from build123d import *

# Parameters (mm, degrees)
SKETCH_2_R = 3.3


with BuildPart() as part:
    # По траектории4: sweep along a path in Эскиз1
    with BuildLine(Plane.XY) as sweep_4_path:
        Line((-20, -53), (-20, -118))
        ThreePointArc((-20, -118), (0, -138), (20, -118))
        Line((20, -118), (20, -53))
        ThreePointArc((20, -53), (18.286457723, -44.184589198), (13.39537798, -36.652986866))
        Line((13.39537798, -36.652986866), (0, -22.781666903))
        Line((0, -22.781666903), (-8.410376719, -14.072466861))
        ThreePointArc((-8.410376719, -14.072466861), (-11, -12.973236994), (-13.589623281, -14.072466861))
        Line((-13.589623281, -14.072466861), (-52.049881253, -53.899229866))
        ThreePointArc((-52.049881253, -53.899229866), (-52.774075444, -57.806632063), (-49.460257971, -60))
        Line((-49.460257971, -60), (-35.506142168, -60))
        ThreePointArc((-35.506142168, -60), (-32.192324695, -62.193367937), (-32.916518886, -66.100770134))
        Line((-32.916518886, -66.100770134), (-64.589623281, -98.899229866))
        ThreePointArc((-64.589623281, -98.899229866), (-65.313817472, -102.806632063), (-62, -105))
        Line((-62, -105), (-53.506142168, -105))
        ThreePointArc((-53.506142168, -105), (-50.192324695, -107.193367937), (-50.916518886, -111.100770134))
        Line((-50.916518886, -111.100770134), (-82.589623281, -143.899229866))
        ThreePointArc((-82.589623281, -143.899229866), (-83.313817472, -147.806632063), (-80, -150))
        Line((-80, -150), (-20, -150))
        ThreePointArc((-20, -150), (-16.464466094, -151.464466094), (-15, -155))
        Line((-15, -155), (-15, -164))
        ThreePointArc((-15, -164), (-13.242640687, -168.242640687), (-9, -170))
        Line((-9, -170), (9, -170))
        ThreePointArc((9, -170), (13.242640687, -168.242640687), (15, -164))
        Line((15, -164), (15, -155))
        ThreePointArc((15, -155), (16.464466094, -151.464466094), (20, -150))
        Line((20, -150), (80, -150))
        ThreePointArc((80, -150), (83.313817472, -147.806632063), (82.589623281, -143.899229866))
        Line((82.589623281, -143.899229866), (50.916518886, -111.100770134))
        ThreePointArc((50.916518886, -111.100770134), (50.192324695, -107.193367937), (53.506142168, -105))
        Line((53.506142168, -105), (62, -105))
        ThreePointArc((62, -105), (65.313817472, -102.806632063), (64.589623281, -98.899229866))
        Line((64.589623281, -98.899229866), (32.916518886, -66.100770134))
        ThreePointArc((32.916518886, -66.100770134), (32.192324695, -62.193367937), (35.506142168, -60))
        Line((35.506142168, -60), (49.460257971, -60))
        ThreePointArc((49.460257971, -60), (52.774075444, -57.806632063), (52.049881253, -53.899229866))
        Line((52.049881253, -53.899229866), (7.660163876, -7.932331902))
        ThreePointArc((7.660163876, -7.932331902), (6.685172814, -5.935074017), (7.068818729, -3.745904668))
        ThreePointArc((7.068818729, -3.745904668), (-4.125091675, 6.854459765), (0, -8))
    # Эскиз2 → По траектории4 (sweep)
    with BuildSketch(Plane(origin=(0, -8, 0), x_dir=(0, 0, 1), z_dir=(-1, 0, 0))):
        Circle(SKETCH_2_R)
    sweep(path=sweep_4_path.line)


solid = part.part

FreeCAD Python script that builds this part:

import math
import FreeCAD as App
import Part
import Sketcher
from FreeCAD import Vector
Q = App.Units.Quantity

doc = App.newDocument("Part")
params = doc.addObject("Spreadsheet::Sheet", "Params")
for row, (alias, value) in enumerate([
    ("sketch1_diameter", "6.6 mm"),
    ("sketch2_radius", "20 mm"),
    ("sketch2_radius2", "5 mm"),
    ("sketch2_radius3", "6 mm"),
    ("sketch2_radius4", "8 mm"),
    ("sketch2_radius5", "3.6 mm"),
], start=1):
    params.set(f"A{row}", alias)
    params.set(f"B{row}", "=" + value)
    params.setAlias(f"B{row}", alias)

body = doc.addObject("PartDesign::Body", "Body")

# Sketch on YZ plane
sketch1 = body.newObject("Sketcher::SketchObject", "Sketch")
sketch1.AttachmentSupport = (doc.getObject("YZ_Plane"), [""])
sketch1.MapMode = "FlatFace"
sketch1.addGeometry(Part.Circle(Vector(-8, 0, 0), Vector(0, 0, 1), 3.3), False)
sketch1.addConstraint([
    Sketcher.Constraint("PointOnObject", 0, 3, -1),
    Sketcher.Constraint("Diameter", 0, 6.6),
    Sketcher.Constraint("DistanceX", 0, 3, -1, 1, 8.0),
])
sketch1.setExpression("Constraints[1]", "Params.sketch1_diameter")

# Sketch on XY plane
sketch2 = body.newObject("Sketcher::SketchObject", "Sketch001")
sketch2.AttachmentSupport = (doc.getObject("XY_Plane"), [""])
sketch2.MapMode = "FlatFace"
sketch2.addGeometry([
    Part.LineSegment(Vector(-20, -53, 0), Vector(-20, -118, 0)),  # 0
    Part.ArcOfCircle(Part.Circle(Vector(0, -118, 0), Vector(0, 0, 1), 20), math.radians(180), math.radians(360)),  # 1
    Part.LineSegment(Vector(20, -118, 0), Vector(20, -53, 0)),  # 2
    Part.ArcOfCircle(Part.Circle(Vector(-3.53245, -53, 0), Vector(0, 0, 1), 23.53245), math.radians(0), math.radians(44)),  # 3
    Part.LineSegment(Vector(13.395378, -36.652987, 0), Vector(0, -22.781667, 0)),  # 4
    Part.LineSegment(Vector(0, -22.781667, 0), Vector(-8.410377, -14.072467, 0)),  # 5
    Part.ArcOfCircle(Part.Circle(Vector(-11, -16.573237, 0), Vector(0, 0, 1), 3.6), math.radians(44), math.radians(136)),  # 6
    Part.LineSegment(Vector(-13.589623, -14.072467, 0), Vector(-52.049881, -53.89923, 0)),  # 7
    Part.ArcOfCircle(Part.Circle(Vector(-49.460258, -56.4, 0), Vector(0, 0, 1), 3.6), math.radians(136), math.radians(270)),  # 8
    Part.LineSegment(Vector(-49.460258, -60, 0), Vector(-35.506142, -60, 0)),  # 9
    Part.ArcOfCircle(Part.Circle(Vector(-35.506142, -63.6, 0), Vector(0, 0, 1), 3.6), math.radians(-44), math.radians(90)),  # 10
    Part.LineSegment(Vector(-32.916519, -66.10077, 0), Vector(-64.589623, -98.89923, 0)),  # 11
    Part.ArcOfCircle(Part.Circle(Vector(-62, -101.4, 0), Vector(0, 0, 1), 3.6), math.radians(136), math.radians(270)),  # 12
    Part.LineSegment(Vector(-62, -105, 0), Vector(-53.506142, -105, 0)),  # 13
    Part.ArcOfCircle(Part.Circle(Vector(-53.506142, -108.6, 0), Vector(0, 0, 1), 3.6), math.radians(-44), math.radians(90)),  # 14
    Part.LineSegment(Vector(-50.916519, -111.10077, 0), Vector(-82.589623, -143.89923, 0)),  # 15
    Part.ArcOfCircle(Part.Circle(Vector(-80, -146.4, 0), Vector(0, 0, 1), 3.6), math.radians(136), math.radians(270)),  # 16
    Part.LineSegment(Vector(-80, -150, 0), Vector(-20, -150, 0)),  # 17
    Part.ArcOfCircle(Part.Circle(Vector(-20, -155, 0), Vector(0, 0, 1), 5), math.radians(0), math.radians(90)),  # 18
    Part.LineSegment(Vector(-15, -155, 0), Vector(-15, -164, 0)),  # 19
    Part.ArcOfCircle(Part.Circle(Vector(-9, -164, 0), Vector(0, 0, 1), 6), math.radians(180), math.radians(270)),  # 20
    Part.LineSegment(Vector(-9, -170, 0), Vector(9, -170, 0)),  # 21
    Part.ArcOfCircle(Part.Circle(Vector(9, -164, 0), Vector(0, 0, 1), 6), math.radians(-90), math.radians(0)),  # 22
    Part.LineSegment(Vector(15, -164, 0), Vector(15, -155, 0)),  # 23
    Part.ArcOfCircle(Part.Circle(Vector(20, -155, 0), Vector(0, 0, 1), 5), math.radians(90), math.radians(180)),  # 24
    Part.LineSegment(Vector(20, -150, 0), Vector(80, -150, 0)),  # 25
    Part.ArcOfCircle(Part.Circle(Vector(80, -146.4, 0), Vector(0, 0, 1), 3.6), math.radians(-90), math.radians(44)),  # 26
    Part.LineSegment(Vector(82.589623, -143.89923, 0), Vector(50.916519, -111.10077, 0)),  # 27
    Part.ArcOfCircle(Part.Circle(Vector(53.506142, -108.6, 0), Vector(0, 0, 1), 3.6), math.radians(90), math.radians(224)),  # 28
    Part.LineSegment(Vector(53.506142, -105, 0), Vector(62, -105, 0)),  # 29
    Part.ArcOfCircle(Part.Circle(Vector(62, -101.4, 0), Vector(0, 0, 1), 3.6), math.radians(-90), math.radians(44)),  # 30
    Part.LineSegment(Vector(64.589623, -98.89923, 0), Vector(32.916519, -66.10077, 0)),  # 31
    Part.ArcOfCircle(Part.Circle(Vector(35.506142, -63.6, 0), Vector(0, 0, 1), 3.6), math.radians(90), math.radians(224)),  # 32
    Part.LineSegment(Vector(35.506142, -60, 0), Vector(49.460258, -60, 0)),  # 33
    Part.ArcOfCircle(Part.Circle(Vector(49.460258, -56.4, 0), Vector(0, 0, 1), 3.6), math.radians(-90), math.radians(44)),  # 34
    Part.LineSegment(Vector(52.049881, -53.89923, 0), Vector(7.660164, -7.932332, 0)),  # 35
    Part.ArcOfCircle(Part.Circle(Vector(10.249787, -5.431562, 0), Vector(0, 0, 1), 3.6), math.radians(152.080013), math.radians(224)),  # 36
    Part.ArcOfCircle(Part.Circle(Vector(0, 0, 0), Vector(0, 0, 1), 8), math.radians(-27.919987), math.radians(270)),  # 37
], False)
sketch2.addConstraint([
    Sketcher.Constraint("Tangent", 0, 2, 1, 1),
    Sketcher.Constraint("Tangent", 1, 2, 2, 1),
    Sketcher.Constraint("Tangent", 2, 2, 3, 1),
    Sketcher.Constraint("Tangent", 3, 2, 4, 1),
    Sketcher.Constraint("Coincident", 4, 2, 5, 1),
    Sketcher.Constraint("Tangent", 5, 2, 6, 1),
    Sketcher.Constraint("Tangent", 6, 2, 7, 1),
    Sketcher.Constraint("Tangent", 7, 2, 8, 1),
    Sketcher.Constraint("Tangent", 8, 2, 9, 1),
    Sketcher.Constraint("Tangent", 9, 2, 10, 2),
    Sketcher.Constraint("Tangent", 10, 1, 11, 1),
    Sketcher.Constraint("Tangent", 11, 2, 12, 1),
    Sketcher.Constraint("Tangent", 12, 2, 13, 1),
    Sketcher.Constraint("Tangent", 13, 2, 14, 2),
    Sketcher.Constraint("Tangent", 14, 1, 15, 1),
    Sketcher.Constraint("Tangent", 15, 2, 16, 1),
    Sketcher.Constraint("Tangent", 16, 2, 17, 1),
    Sketcher.Constraint("Tangent", 17, 2, 18, 2),
    Sketcher.Constraint("Tangent", 18, 1, 19, 1),
    Sketcher.Constraint("Tangent", 19, 2, 20, 1),
    Sketcher.Constraint("Tangent", 20, 2, 21, 1),
    Sketcher.Constraint("Tangent", 21, 2, 22, 1),
    Sketcher.Constraint("Tangent", 22, 2, 23, 1),
    Sketcher.Constraint("Tangent", 23, 2, 24, 2),
    Sketcher.Constraint("Tangent", 24, 1, 25, 1),
    Sketcher.Constraint("Tangent", 25, 2, 26, 1),
    Sketcher.Constraint("Tangent", 26, 2, 27, 1),
    Sketcher.Constraint("Tangent", 27, 2, 28, 2),
    Sketcher.Constraint("Tangent", 28, 1, 29, 1),
    Sketcher.Constraint("Tangent", 29, 2, 30, 1),
    Sketcher.Constraint("Tangent", 30, 2, 31, 1),
    Sketcher.Constraint("Tangent", 31, 2, 32, 2),
    Sketcher.Constraint("Tangent", 32, 1, 33, 1),
    Sketcher.Constraint("Tangent", 33, 2, 34, 1),
    Sketcher.Constraint("Tangent", 34, 2, 35, 1),
    Sketcher.Constraint("Tangent", 35, 2, 36, 2),
    Sketcher.Constraint("Tangent", 36, 1, 37, 1),
    Sketcher.Constraint("Vertical", 0),
    Sketcher.Constraint("Vertical", 2),
    Sketcher.Constraint("Horizontal", 9),
    Sketcher.Constraint("Horizontal", 13),
    Sketcher.Constraint("Horizontal", 17),
    Sketcher.Constraint("Vertical", 19),
    Sketcher.Constraint("Horizontal", 21),
    Sketcher.Constraint("Vertical", 23),
    Sketcher.Constraint("Horizontal", 25),
    Sketcher.Constraint("Horizontal", 29),
    Sketcher.Constraint("Horizontal", 33),
    Sketcher.Constraint("Coincident", 37, 3, -1, 1),
    Sketcher.Constraint("Equal", 6, 8),
    Sketcher.Constraint("Equal", 8, 10),
    Sketcher.Constraint("Equal", 10, 12),
    Sketcher.Constraint("Equal", 12, 14),
    Sketcher.Constraint("Equal", 14, 16),
    Sketcher.Constraint("Equal", 20, 22),
    Sketcher.Constraint("Equal", 18, 24),
    Sketcher.Constraint("Equal", 16, 26),
    Sketcher.Constraint("Equal", 26, 28),
    Sketcher.Constraint("Equal", 28, 30),
    Sketcher.Constraint("Equal", 30, 32),
    Sketcher.Constraint("Equal", 32, 34),
    Sketcher.Constraint("Equal", 34, 36),
    Sketcher.Constraint("Symmetric", 18, 3, 24, 3, -2),
    Sketcher.Constraint("Symmetric", 14, 3, 28, 3, -2),
    Sketcher.Constraint("Symmetric", 10, 3, 32, 3, -2),
    Sketcher.Constraint("Symmetric", 0, 1, 2, 2, -2),
    Sketcher.Constraint("Symmetric", 7, 2, 34, 2, -2),
    Sketcher.Constraint("PointOnObject", 4, 2, -2),
    Sketcher.Constraint("PointOnObject", 37, 2, -2),
    Sketcher.Constraint("Parallel", 4, 5),
    Sketcher.Constraint("Parallel", 7, 11),
    Sketcher.Constraint("Parallel", 11, 15),
    Sketcher.Constraint("Parallel", 5, 27),
    Sketcher.Constraint("Parallel", 27, 31),
    Sketcher.Constraint("Parallel", 31, 35),
    Sketcher.Constraint("Vertical", 18, 3, 0, 1),
    Sketcher.Constraint("Equal", 11, 15),
    Sketcher.Constraint("Radius", 1, 20.0),
    Sketcher.Constraint("Radius", 18, 5.0),
    Sketcher.Constraint("Radius", 20, 6.0),
    Sketcher.Constraint("Radius", 37, 8.0),
    Sketcher.Constraint("Radius", 6, 3.6),
    Sketcher.Constraint("DistanceX", 17, 1, 17, 2, 60.0),
    Sketcher.Constraint("DistanceY", 0, 2, 0, 1, 65.0),
    Sketcher.Constraint("DistanceY", 19, 2, 19, 1, 9.0),
    Sketcher.Constraint("Angle", 4, Q("134 deg")),
    Sketcher.Constraint("DistanceY", 1, 3, -1, 1, 118.0),
    Sketcher.Constraint("DistanceX", 6, 3, -1, 1, 11.0),
    Sketcher.Constraint("DistanceX", 12, 3, -1, 1, 62.0),
    Sketcher.Constraint("DistanceY", 18, 3, -1, 1, 155.0),
    Sketcher.Constraint("DistanceY", 8, 2, -1, 1, 60.0),
    Sketcher.Constraint("Radius", 3, 23.53245),
])
sketch2.setExpression("Constraints[77]", "Params.sketch2_radius")
sketch2.setExpression("Constraints[78]", "Params.sketch2_radius2")
sketch2.setExpression("Constraints[79]", "Params.sketch2_radius3")
sketch2.setExpression("Constraints[80]", "Params.sketch2_radius4")
sketch2.setExpression("Constraints[81]", "Params.sketch2_radius5")
doc.recompute()

additivepipe = body.newObject("PartDesign::AdditivePipe", "AdditivePipe")
additivepipe.Profile = sketch1
additivepipe.Spine = (sketch2, ["Edge1", "Edge2", "Edge3", "Edge4", "Edge5", "Edge6", "Edge7", "Edge8", "Edge9", "Edge10", "Edge11", "Edge12", "Edge13", "Edge14", "Edge15", "Edge16", "Edge17", "Edge18", "Edge19", "Edge20", "Edge21", "Edge22", "Edge23", "Edge24", "Edge25", "Edge26", "Edge27", "Edge28", "Edge29", "Edge30", "Edge31", "Edge32", "Edge33", "Edge34", "Edge35", "Edge36", "Edge37", "Edge38"])

doc.recompute()
